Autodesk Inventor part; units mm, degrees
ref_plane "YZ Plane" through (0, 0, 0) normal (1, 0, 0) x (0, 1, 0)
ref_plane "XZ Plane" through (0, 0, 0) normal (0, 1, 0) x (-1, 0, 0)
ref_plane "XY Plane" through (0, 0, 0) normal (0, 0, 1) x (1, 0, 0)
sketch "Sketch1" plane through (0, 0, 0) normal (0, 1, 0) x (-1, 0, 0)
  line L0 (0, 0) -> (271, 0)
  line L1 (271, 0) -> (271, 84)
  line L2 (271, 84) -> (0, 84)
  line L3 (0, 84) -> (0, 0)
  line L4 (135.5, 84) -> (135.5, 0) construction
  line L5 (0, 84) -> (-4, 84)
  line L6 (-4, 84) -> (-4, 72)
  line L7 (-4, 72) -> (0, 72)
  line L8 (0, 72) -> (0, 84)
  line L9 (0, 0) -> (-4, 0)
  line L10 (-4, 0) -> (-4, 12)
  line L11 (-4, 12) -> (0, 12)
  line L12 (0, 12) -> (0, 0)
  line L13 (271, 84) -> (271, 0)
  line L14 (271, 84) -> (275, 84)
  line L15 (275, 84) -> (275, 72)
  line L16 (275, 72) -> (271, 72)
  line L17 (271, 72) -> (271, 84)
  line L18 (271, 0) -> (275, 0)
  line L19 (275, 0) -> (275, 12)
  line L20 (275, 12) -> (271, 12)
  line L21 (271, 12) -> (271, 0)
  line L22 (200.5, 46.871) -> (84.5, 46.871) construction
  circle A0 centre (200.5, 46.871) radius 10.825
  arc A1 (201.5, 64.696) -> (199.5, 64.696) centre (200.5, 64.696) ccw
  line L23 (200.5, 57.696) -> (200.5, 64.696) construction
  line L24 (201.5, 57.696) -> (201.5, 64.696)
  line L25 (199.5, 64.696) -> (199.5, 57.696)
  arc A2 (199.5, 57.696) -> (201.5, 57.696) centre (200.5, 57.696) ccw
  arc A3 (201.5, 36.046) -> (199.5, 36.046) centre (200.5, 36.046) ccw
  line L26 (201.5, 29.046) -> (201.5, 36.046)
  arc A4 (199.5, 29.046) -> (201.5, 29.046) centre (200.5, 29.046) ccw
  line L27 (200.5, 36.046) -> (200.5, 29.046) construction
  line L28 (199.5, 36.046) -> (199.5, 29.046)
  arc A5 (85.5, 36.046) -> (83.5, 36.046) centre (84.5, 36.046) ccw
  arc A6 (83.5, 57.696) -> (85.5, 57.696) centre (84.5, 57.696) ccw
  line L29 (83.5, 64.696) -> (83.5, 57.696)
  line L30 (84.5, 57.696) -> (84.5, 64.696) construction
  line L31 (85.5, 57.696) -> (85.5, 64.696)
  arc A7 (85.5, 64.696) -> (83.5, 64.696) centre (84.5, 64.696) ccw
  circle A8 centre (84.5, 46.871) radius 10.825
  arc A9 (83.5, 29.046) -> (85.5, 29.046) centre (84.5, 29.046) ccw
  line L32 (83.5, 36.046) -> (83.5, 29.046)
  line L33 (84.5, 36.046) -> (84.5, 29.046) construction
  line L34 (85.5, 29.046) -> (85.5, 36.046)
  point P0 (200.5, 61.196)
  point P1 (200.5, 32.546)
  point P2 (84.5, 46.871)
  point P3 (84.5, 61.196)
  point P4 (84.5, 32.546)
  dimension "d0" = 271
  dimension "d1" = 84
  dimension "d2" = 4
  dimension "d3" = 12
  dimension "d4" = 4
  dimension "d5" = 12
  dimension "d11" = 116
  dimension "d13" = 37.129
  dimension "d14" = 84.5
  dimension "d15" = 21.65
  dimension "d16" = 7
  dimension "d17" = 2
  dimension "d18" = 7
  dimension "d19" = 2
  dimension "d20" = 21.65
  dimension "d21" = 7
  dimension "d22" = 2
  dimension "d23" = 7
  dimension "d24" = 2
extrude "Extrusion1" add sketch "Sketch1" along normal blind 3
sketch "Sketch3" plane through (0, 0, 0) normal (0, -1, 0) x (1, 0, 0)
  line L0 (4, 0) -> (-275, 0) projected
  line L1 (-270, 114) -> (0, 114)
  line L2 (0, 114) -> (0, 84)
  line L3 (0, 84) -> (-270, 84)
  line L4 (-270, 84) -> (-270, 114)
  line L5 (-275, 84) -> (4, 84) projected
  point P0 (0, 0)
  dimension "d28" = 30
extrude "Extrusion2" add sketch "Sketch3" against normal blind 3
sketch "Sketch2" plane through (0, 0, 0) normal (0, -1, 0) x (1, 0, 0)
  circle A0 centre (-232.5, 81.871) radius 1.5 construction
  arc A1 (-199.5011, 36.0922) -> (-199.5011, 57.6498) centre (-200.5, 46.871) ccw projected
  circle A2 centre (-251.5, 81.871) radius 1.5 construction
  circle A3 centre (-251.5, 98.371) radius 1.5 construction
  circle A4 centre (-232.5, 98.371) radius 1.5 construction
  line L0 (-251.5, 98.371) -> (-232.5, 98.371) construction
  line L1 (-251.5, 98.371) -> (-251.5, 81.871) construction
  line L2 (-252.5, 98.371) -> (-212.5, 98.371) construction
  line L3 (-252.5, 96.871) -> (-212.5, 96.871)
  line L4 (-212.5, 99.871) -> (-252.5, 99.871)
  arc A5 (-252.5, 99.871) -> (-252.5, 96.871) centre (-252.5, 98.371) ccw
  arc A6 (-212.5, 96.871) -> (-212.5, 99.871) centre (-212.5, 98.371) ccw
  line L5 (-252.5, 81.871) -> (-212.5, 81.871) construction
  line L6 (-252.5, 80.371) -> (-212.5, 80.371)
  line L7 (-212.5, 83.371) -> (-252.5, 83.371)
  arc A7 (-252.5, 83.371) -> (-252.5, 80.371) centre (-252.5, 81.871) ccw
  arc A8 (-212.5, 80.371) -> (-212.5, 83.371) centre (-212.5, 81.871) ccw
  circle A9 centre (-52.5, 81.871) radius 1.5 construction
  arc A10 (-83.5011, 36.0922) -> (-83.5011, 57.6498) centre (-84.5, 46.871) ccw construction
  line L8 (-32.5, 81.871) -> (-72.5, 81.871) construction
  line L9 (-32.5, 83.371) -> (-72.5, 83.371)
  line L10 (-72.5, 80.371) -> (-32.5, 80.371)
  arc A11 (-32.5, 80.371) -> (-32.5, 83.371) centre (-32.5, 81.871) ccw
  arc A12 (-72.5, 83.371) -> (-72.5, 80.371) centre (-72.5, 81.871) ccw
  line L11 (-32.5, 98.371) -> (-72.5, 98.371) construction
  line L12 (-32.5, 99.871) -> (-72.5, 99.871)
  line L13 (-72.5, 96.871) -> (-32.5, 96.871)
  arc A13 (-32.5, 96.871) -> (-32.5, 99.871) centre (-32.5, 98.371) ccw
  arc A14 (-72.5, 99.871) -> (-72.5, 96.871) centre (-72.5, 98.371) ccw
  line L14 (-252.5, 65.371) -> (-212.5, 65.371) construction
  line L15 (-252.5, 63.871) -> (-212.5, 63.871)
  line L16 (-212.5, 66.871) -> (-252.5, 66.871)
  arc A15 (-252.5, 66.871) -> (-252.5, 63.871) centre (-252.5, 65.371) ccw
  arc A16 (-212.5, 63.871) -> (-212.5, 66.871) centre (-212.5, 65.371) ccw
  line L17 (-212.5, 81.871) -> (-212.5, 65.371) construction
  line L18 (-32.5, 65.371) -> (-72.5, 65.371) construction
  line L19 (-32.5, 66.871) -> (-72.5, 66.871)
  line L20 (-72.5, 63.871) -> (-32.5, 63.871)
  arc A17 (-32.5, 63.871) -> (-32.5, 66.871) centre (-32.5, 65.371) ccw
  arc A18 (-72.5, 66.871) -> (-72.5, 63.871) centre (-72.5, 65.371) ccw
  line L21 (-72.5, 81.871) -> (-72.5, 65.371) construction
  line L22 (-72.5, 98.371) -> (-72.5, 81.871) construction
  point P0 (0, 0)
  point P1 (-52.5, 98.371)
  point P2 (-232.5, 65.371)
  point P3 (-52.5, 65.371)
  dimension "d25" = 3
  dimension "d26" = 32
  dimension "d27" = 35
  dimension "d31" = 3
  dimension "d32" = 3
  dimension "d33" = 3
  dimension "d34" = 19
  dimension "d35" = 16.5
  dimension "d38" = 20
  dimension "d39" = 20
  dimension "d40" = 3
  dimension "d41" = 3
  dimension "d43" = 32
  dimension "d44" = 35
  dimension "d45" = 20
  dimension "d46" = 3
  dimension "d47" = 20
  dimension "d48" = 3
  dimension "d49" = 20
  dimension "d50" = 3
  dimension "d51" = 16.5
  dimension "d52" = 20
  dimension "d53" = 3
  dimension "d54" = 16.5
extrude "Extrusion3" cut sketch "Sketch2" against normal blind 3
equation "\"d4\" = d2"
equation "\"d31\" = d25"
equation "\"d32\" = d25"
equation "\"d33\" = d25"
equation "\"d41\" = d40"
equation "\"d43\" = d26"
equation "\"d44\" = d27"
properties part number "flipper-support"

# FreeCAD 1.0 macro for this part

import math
import FreeCAD as App
import Part
import Sketcher
from FreeCAD import Vector


def add_polygon(sketch, points):
    """Adds a closed chain of lines whose ends are joined by coincident constraints."""
    first, n = sketch.GeometryCount, len(points)
    for a, b in zip(points, points[1:] + points[:1]):
        sketch.addGeometry(Part.LineSegment(App.Vector(*a, 0), App.Vector(*b, 0)), False)
    for i in range(n):
        sketch.addConstraint(Sketcher.Constraint("Coincident", first + i, 2, first + (i + 1) % n, 1))

doc = App.newDocument("Part")
body = doc.addObject("PartDesign::Body", "Body")

# Sketch on XZ plane
sketch1 = body.newObject("Sketcher::SketchObject", "Sketch")
sketch1.AttachmentSupport = (doc.getObject("XZ_Plane"), [""])
sketch1.MapMode = "FlatFace"
add_polygon(sketch1, [(0, 72), (0, 12), (4, 12), (4, 0), (-275, 0), (-275, 12), (-271, 12), (-271, 72), (-275, 72), (-275, 84), (4, 84), (4, 72)])  # lines 0-11
sketch1.addGeometry(Part.ArcOfCircle(Part.Circle(Vector(-84.5, 36.046, 0), Vector(0, 0, 1), 1), math.radians(177.35), math.radians(180)), False)  # 12
sketch1.addGeometry(Part.LineSegment(Vector(-85.5, 36.046, 0), Vector(-85.5, 29.046, 0)), False)  # 13
sketch1.addGeometry(Part.ArcOfCircle(Part.Circle(Vector(-84.5, 29.046, 0), Vector(0, 0, 1), 1), math.radians(180), math.radians(360)), False)  # 14
sketch1.addGeometry(Part.LineSegment(Vector(-83.5, 29.046, 0), Vector(-83.5, 36.046, 0)), False)  # 15
sketch1.addGeometry(Part.ArcOfCircle(Part.Circle(Vector(-84.5, 36.046, 0), Vector(0, 0, 1), 1), math.radians(0), math.radians(2.65)), False)  # 16
sketch1.addGeometry(Part.ArcOfCircle(Part.Circle(Vector(-84.5, 46.871, 0), Vector(0, 0, 1), 10.825), math.radians(-85), math.radians(85)), False)  # 17
sketch1.addGeometry(Part.ArcOfCircle(Part.Circle(Vector(-84.5, 57.696, 0), Vector(0, 0, 1), 1), math.radians(-2.65), math.radians(0)), False)  # 18
sketch1.addGeometry(Part.LineSegment(Vector(-83.5, 57.696, 0), Vector(-83.5, 64.696, 0)), False)  # 19
sketch1.addGeometry(Part.ArcOfCircle(Part.Circle(Vector(-84.5, 64.696, 0), Vector(0, 0, 1), 1), math.radians(0), math.radians(180)), False)  # 20
sketch1.addGeometry(Part.LineSegment(Vector(-85.5, 64.696, 0), Vector(-85.5, 57.696, 0)), False)  # 21
sketch1.addGeometry(Part.ArcOfCircle(Part.Circle(Vector(-84.5, 57.696, 0), Vector(0, 0, 1), 1), math.radians(180), math.radians(182.65)), False)  # 22
sketch1.addGeometry(Part.ArcOfCircle(Part.Circle(Vector(-84.5, 46.871, 0), Vector(0, 0, 1), 10.825), math.radians(95), math.radians(265)), False)  # 23
sketch1.addGeometry(Part.ArcOfCircle(Part.Circle(Vector(-200.5, 46.871, 0), Vector(0, 0, 1), 10.825), math.radians(95), math.radians(265)), False)  # 24
sketch1.addGeometry(Part.ArcOfCircle(Part.Circle(Vector(-200.5, 36.046, 0), Vector(0, 0, 1), 1), math.radians(177.35), math.radians(180)), False)  # 25
sketch1.addGeometry(Part.LineSegment(Vector(-201.5, 36.046, 0), Vector(-201.5, 29.046, 0)), False)  # 26
sketch1.addGeometry(Part.ArcOfCircle(Part.Circle(Vector(-200.5, 29.046, 0), Vector(0, 0, 1), 1), math.radians(180), math.radians(360)), False)  # 27
sketch1.addGeometry(Part.LineSegment(Vector(-199.5, 29.046, 0), Vector(-199.5, 36.046, 0)), False)  # 28
sketch1.addGeometry(Part.ArcOfCircle(Part.Circle(Vector(-200.5, 36.046, 0), Vector(0, 0, 1), 1), math.radians(0), math.radians(2.65)), False)  # 29
sketch1.addGeometry(Part.ArcOfCircle(Part.Circle(Vector(-200.5, 46.871, 0), Vector(0, 0, 1), 10.825), math.radians(-85), math.radians(85)), False)  # 30
sketch1.addGeometry(Part.ArcOfCircle(Part.Circle(Vector(-200.5, 57.696, 0), Vector(0, 0, 1), 1), math.radians(-2.65), math.radians(0)), False)  # 31
sketch1.addGeometry(Part.LineSegment(Vector(-199.5, 57.696, 0), Vector(-199.5, 64.696, 0)), False)  # 32
sketch1.addGeometry(Part.ArcOfCircle(Part.Circle(Vector(-200.5, 64.696, 0), Vector(0, 0, 1), 1), math.radians(0), math.radians(180)), False)  # 33
sketch1.addGeometry(Part.LineSegment(Vector(-201.5, 64.696, 0), Vector(-201.5, 57.696, 0)), False)  # 34
sketch1.addGeometry(Part.ArcOfCircle(Part.Circle(Vector(-200.5, 57.696, 0), Vector(0, 0, 1), 1), math.radians(180), math.radians(182.65)), False)  # 35
sketch1.addConstraint([
    Sketcher.Constraint("Tangent", 12, 2, 13, 1),
    Sketcher.Constraint("Tangent", 13, 2, 14, 1),
    Sketcher.Constraint("Tangent", 14, 2, 15, 1),
    Sketcher.Constraint("Tangent", 15, 2, 16, 1),
    Sketcher.Constraint("Coincident", 16, 2, 17, 1),
    Sketcher.Constraint("Coincident", 17, 2, 18, 1),
    Sketcher.Constraint("Tangent", 18, 2, 19, 1),
    Sketcher.Constraint("Tangent", 19, 2, 20, 1),
    Sketcher.Constraint("Tangent", 20, 2, 21, 1),
    Sketcher.Constraint("Tangent", 21, 2, 22, 1),
    Sketcher.Constraint("Coincident", 22, 2, 23, 1),
    Sketcher.Constraint("Coincident", 23, 2, 12, 1),
    Sketcher.Constraint("Coincident", 24, 2, 25, 1),
    Sketcher.Constraint("Tangent", 25, 2, 26, 1),
    Sketcher.Constraint("Tangent", 26, 2, 27, 1),
    Sketcher.Constraint("Tangent", 27, 2, 28, 1),
    Sketcher.Constraint("Tangent", 28, 2, 29, 1),
    Sketcher.Constraint("Coincident", 29, 2, 30, 1),
    Sketcher.Constraint("Coincident", 30, 2, 31, 1),
    Sketcher.Constraint("Tangent", 31, 2, 32, 1),
    Sketcher.Constraint("Tangent", 32, 2, 33, 1),
    Sketcher.Constraint("Tangent", 33, 2, 34, 1),
    Sketcher.Constraint("Tangent", 34, 2, 35, 1),
    Sketcher.Constraint("Coincident", 35, 2, 24, 1),
    Sketcher.Constraint("Vertical", 0),
    Sketcher.Constraint("Horizontal", 1),
    Sketcher.Constraint("Vertical", 2),
    Sketcher.Constraint("Horizontal", 3),
    Sketcher.Constraint("Vertical", 4),
    Sketcher.Constraint("Horizontal", 5),
    Sketcher.Constraint("Vertical", 6),
    Sketcher.Constraint("Horizontal", 7),
    Sketcher.Constraint("Vertical", 8),
    Sketcher.Constraint("Horizontal", 9),
    Sketcher.Constraint("Vertical", 10),
    Sketcher.Constraint("Horizontal", 11),
    Sketcher.Constraint("Vertical", 13),
    Sketcher.Constraint("Vertical", 15),
    Sketcher.Constraint("Vertical", 19),
    Sketcher.Constraint("Vertical", 21),
    Sketcher.Constraint("Vertical", 26),
    Sketcher.Constraint("Vertical", 28),
    Sketcher.Constraint("Vertical", 32),
    Sketcher.Constraint("Vertical", 34),
    Sketcher.Constraint("Coincident", 16, 3, 12, 3),
    Sketcher.Constraint("Coincident", 22, 3, 18, 3),
    Sketcher.Constraint("Coincident", 23, 3, 17, 3),
    Sketcher.Constraint("Coincident", 29, 3, 25, 3),
    Sketcher.Constraint("Coincident", 30, 3, 24, 3),
    Sketcher.Constraint("Coincident", 35, 3, 31, 3),
    Sketcher.Constraint("Equal", 12, 14),
    Sketcher.Constraint("Equal", 16, 18),
    Sketcher.Constraint("Equal", 18, 20),
    Sketcher.Constraint("Equal", 17, 23),
    Sketcher.Constraint("Equal", 23, 24),
    Sketcher.Constraint("Equal", 22, 25),
    Sketcher.Constraint("Equal", 25, 27),
    Sketcher.Constraint("Equal", 24, 30),
    Sketcher.Constraint("Equal", 29, 31),
    Sketcher.Constraint("Equal", 31, 33),
    Sketcher.Constraint("PointOnObject", 0, 2, -2),
    Sketcher.Constraint("PointOnObject", 2, 2, -1),
    Sketcher.Constraint("Horizontal", 23, 3, 24, 3),
    Sketcher.Constraint("Horizontal", 16, 3, 25, 3),
    Sketcher.Constraint("Horizontal", 14, 3, 27, 3),
    Sketcher.Constraint("Horizontal", 22, 3, 31, 3),
    Sketcher.Constraint("Horizontal", 20, 3, 33, 3),
    Sketcher.Constraint("Horizontal", 1, 2, 4, 2),
    Sketcher.Constraint("Horizontal", 7, 2, 10, 2),
    Sketcher.Constraint("Horizontal", 17, 2, 22, 2),
    Sketcher.Constraint("Horizontal", 16, 2, 23, 2),
    Sketcher.Constraint("Horizontal", 23, 2, 24, 2),
    Sketcher.Constraint("Horizontal", 22, 2, 30, 2),
    Sketcher.Constraint("Vertical", 4, 2, 7, 2),
    Sketcher.Constraint("Vertical", 2, 2, 9, 2),
    Sketcher.Constraint("Vertical", 16, 2, 17, 2),
    Sketcher.Constraint("Equal", 1, 5),
    Sketcher.Constraint("Equal", 4, 8),
    Sketcher.Constraint("Equal", 15, 19),
    Sketcher.Constraint("Radius", 12, 1.0),
    Sketcher.Constraint("DistanceX", 1, 1, 1, 2, 4.0),
    Sketcher.Constraint("DistanceY", 2, 2, 2, 1, 12.0),
    Sketcher.Constraint("DistanceY", 13, 2, 13, 1, 7.0),
    Sketcher.Constraint("DistanceX", 5, 2, -1, 1, 271.0),
    Sketcher.Constraint("DistanceY", -1, 1, 8, 2, 84.0),
    Sketcher.Constraint("Radius", 17, 10.825),
    Sketcher.Constraint("DistanceX", 24, 3, 17, 3, 116.0),
    Sketcher.Constraint("DistanceX", 12, 3, -1, 1, 84.5),
    Sketcher.Constraint("DistanceY", 12, 3, 18, 3, 21.65),
    Sketcher.Constraint("DistanceY", -1, 1, 12, 3, 36.046),
])
pad1 = body.newObject("PartDesign::Pad", "Pad")
pad1.Profile = sketch1
pad1.Length = 3
pad1.Reversed = True

# Sketch on XZ plane
sketch2 = body.newObject("Sketcher::SketchObject", "Sketch001")
sketch2.AttachmentSupport = (doc.getObject("XZ_Plane"), [""])
sketch2.MapMode = "FlatFace"
add_polygon(sketch2, [(0, 114), (-270, 114), (-270, 84), (0, 84)])  # lines 0-3
sketch2.addConstraint([
    Sketcher.Constraint("Horizontal", 0),
    Sketcher.Constraint("Vertical", 1),
    Sketcher.Constraint("Horizontal", 2),
    Sketcher.Constraint("Vertical", 3),
    Sketcher.Constraint("PointOnObject", 2, 2, -2),
    Sketcher.Constraint("DistanceY", 1, 2, 1, 1, 30.0),
    Sketcher.Constraint("DistanceX", 0, 2, 0, 1, 270.0),
    Sketcher.Constraint("DistanceY", -1, 1, 0, 2, 114.0),
])
pad2 = body.newObject("PartDesign::Pad", "Pad001")
pad2.Profile = sketch2
pad2.Length = 3
pad2.Reversed = True

# Sketch on XZ plane
sketch3 = body.newObject("Sketcher::SketchObject", "Sketch002")
sketch3.AttachmentSupport = (doc.getObject("XZ_Plane"), [""])
sketch3.MapMode = "FlatFace"
sketch3.addGeometry([
    Part.ArcOfCircle(Part.Circle(Vector(-252.5, 98.4, 0), Vector(0, 0, 1), 1.5), math.radians(90), math.radians(270)),  # 0
    Part.LineSegment(Vector(-252.5, 96.9, 0), Vector(-212.5, 96.9, 0)),  # 1
    Part.ArcOfCircle(Part.Circle(Vector(-212.5, 98.4, 0), Vector(0, 0, 1), 1.5), math.radians(-90), math.radians(90)),  # 2
    Part.LineSegment(Vector(-212.5, 99.9, 0), Vector(-252.5, 99.9, 0)),  # 3
    Part.ArcOfCircle(Part.Circle(Vector(-252.5, 81.9, 0), Vector(0, 0, 1), 1.5), math.radians(90), math.radians(270)),  # 4
    Part.LineSegment(Vector(-252.5, 80.4, 0), Vector(-212.5, 80.4, 0)),  # 5
    Part.ArcOfCircle(Part.Circle(Vector(-212.5, 81.9, 0), Vector(0, 0, 1), 1.5), math.radians(-90), math.radians(90)),  # 6
    Part.LineSegment(Vector(-212.5, 83.4, 0), Vector(-252.5, 83.4, 0)),  # 7
    Part.ArcOfCircle(Part.Circle(Vector(-32.5, 81.9, 0), Vector(0, 0, 1), 1.5), math.radians(-90), math.radians(90)),  # 8
    Part.LineSegment(Vector(-32.5, 83.4, 0), Vector(-72.5, 83.4, 0)),  # 9
    Part.ArcOfCircle(Part.Circle(Vector(-72.5, 81.9, 0), Vector(0, 0, 1), 1.5), math.radians(90), math.radians(270)),  # 10
    Part.LineSegment(Vector(-72.5, 80.4, 0), Vector(-32.5, 80.4, 0)),  # 11
    Part.ArcOfCircle(Part.Circle(Vector(-32.5, 98.4, 0), Vector(0, 0, 1), 1.5), math.radians(-90), math.radians(90)),  # 12
    Part.LineSegment(Vector(-32.5, 99.9, 0), Vector(-72.5, 99.9, 0)),  # 13
    Part.ArcOfCircle(Part.Circle(Vector(-72.5, 98.4, 0), Vector(0, 0, 1), 1.5), math.radians(90), math.radians(270)),  # 14
    Part.LineSegment(Vector(-72.5, 96.9, 0), Vector(-32.5, 96.9, 0)),  # 15
    Part.ArcOfCircle(Part.Circle(Vector(-252.5, 65.4, 0), Vector(0, 0, 1), 1.5), math.radians(90), math.radians(270)),  # 16
    Part.LineSegment(Vector(-252.5, 63.9, 0), Vector(-212.5, 63.9, 0)),  # 17
    Part.ArcOfCircle(Part.Circle(Vector(-212.5, 65.4, 0), Vector(0, 0, 1), 1.5), math.radians(-90), math.radians(90)),  # 18
    Part.LineSegment(Vector(-212.5, 66.9, 0), Vector(-252.5, 66.9, 0)),  # 19
    Part.ArcOfCircle(Part.Circle(Vector(-32.5, 65.4, 0), Vector(0, 0, 1), 1.5), math.radians(-90), math.radians(90)),  # 20
    Part.LineSegment(Vector(-32.5, 66.9, 0), Vector(-72.5, 66.9, 0)),  # 21
    Part.ArcOfCircle(Part.Circle(Vector(-72.5, 65.4, 0), Vector(0, 0, 1), 1.5), math.radians(90), math.radians(270)),  # 22
    Part.LineSegment(Vector(-72.5, 63.9, 0), Vector(-32.5, 63.9, 0)),  # 23
], False)
sketch3.addConstraint([
    Sketcher.Constraint("Tangent", 0, 2, 1, 1),
    Sketcher.Constraint("Tangent", 1, 2, 2, 1),
    Sketcher.Constraint("Tangent", 2, 2, 3, 1),
    Sketcher.Constraint("Tangent", 3, 2, 0, 1),
    Sketcher.Constraint("Tangent", 4, 2, 5, 1),
    Sketcher.Constraint("Tangent", 5, 2, 6, 1),
    Sketcher.Constraint("Tangent", 6, 2, 7, 1),
    Sketcher.Constraint("Tangent", 7, 2, 4, 1),
    Sketcher.Constraint("Tangent", 8, 2, 9, 1),
    Sketcher.Constraint("Tangent", 9, 2, 10, 1),
    Sketcher.Constraint("Tangent", 10, 2, 11, 1),
    Sketcher.Constraint("Tangent", 11, 2, 8, 1),
    Sketcher.Constraint("Tangent", 12, 2, 13, 1),
    Sketcher.Constraint("Tangent", 13, 2, 14, 1),
    Sketcher.Constraint("Tangent", 14, 2, 15, 1),
    Sketcher.Constraint("Tangent", 15, 2, 12, 1),
    Sketcher.Constraint("Tangent", 16, 2, 17, 1),
    Sketcher.Constraint("Tangent", 17, 2, 18, 1),
    Sketcher.Constraint("Tangent", 18, 2, 19, 1),
    Sketcher.Constraint("Tangent", 19, 2, 16, 1),
    Sketcher.Constraint("Tangent", 20, 2, 21, 1),
    Sketcher.Constraint("Tangent", 21, 2, 22, 1),
    Sketcher.Constraint("Tangent", 22, 2, 23, 1),
    Sketcher.Constraint("Tangent", 23, 2, 20, 1),
    Sketcher.Constraint("Horizontal", 1),
    Sketcher.Constraint("Horizontal", 3),
    Sketcher.Constraint("Horizontal", 5),
    Sketcher.Constraint("Horizontal", 7),
    Sketcher.Constraint("Horizontal", 9),
    Sketcher.Constraint("Horizontal", 11),
    Sketcher.Constraint("Horizontal", 13),
    Sketcher.Constraint("Horizontal", 15),
    Sketcher.Constraint("Horizontal", 17),
    Sketcher.Constraint("Horizontal", 19),
    Sketcher.Constraint("Horizontal", 21),
    Sketcher.Constraint("Horizontal", 23),
    Sketcher.Constraint("Equal", 2, 4),
    Sketcher.Constraint("Equal", 6, 8),
    Sketcher.Constraint("Equal", 10, 12),
    Sketcher.Constraint("Equal", 14, 16),
    Sketcher.Constraint("Equal", 18, 20),
    Sketcher.Constraint("Horizontal", 6, 3, 8, 3),
    Sketcher.Constraint("Horizontal", 2, 3, 12, 3),
    Sketcher.Constraint("Horizontal", 18, 3, 20, 3),
    Sketcher.Constraint("Vertical", 0, 3, 4, 3),
    Sketcher.Constraint("Vertical", 2, 3, 6, 3),
    Sketcher.Constraint("Vertical", 8, 3, 12, 3),
    Sketcher.Constraint("Vertical", 10, 3, 14, 3),
    Sketcher.Constraint("Vertical", 4, 3, 16, 3),
    Sketcher.Constraint("Vertical", 6, 3, 18, 3),
    Sketcher.Constraint("Vertical", 12, 3, 20, 3),
    Sketcher.Constraint("Vertical", 14, 3, 22, 3),
    Sketcher.Constraint("Equal", 7, 9),
    Sketcher.Constraint("Radius", 0, 1.5),
    Sketcher.Constraint("DistanceY", 4, 3, 0, 3, 16.5),
    Sketcher.Constraint("DistanceY", 16, 3, 4, 3, 16.5),
    Sketcher.Constraint("DistanceX", 1, 1, 1, 2, 40.0),
    Sketcher.Constraint("DistanceX", 6, 3, 8, 3, 180.0),
    Sketcher.Constraint("DistanceX", 0, 3, -1, 1, 252.5),
    Sketcher.Constraint("DistanceY", -1, 1, 0, 3, 98.371),
])
pocket1 = body.newObject("PartDesign::Pocket", "Pocket")
pocket1.Profile = sketch3
pocket1.Length = 3

doc.recompute()
